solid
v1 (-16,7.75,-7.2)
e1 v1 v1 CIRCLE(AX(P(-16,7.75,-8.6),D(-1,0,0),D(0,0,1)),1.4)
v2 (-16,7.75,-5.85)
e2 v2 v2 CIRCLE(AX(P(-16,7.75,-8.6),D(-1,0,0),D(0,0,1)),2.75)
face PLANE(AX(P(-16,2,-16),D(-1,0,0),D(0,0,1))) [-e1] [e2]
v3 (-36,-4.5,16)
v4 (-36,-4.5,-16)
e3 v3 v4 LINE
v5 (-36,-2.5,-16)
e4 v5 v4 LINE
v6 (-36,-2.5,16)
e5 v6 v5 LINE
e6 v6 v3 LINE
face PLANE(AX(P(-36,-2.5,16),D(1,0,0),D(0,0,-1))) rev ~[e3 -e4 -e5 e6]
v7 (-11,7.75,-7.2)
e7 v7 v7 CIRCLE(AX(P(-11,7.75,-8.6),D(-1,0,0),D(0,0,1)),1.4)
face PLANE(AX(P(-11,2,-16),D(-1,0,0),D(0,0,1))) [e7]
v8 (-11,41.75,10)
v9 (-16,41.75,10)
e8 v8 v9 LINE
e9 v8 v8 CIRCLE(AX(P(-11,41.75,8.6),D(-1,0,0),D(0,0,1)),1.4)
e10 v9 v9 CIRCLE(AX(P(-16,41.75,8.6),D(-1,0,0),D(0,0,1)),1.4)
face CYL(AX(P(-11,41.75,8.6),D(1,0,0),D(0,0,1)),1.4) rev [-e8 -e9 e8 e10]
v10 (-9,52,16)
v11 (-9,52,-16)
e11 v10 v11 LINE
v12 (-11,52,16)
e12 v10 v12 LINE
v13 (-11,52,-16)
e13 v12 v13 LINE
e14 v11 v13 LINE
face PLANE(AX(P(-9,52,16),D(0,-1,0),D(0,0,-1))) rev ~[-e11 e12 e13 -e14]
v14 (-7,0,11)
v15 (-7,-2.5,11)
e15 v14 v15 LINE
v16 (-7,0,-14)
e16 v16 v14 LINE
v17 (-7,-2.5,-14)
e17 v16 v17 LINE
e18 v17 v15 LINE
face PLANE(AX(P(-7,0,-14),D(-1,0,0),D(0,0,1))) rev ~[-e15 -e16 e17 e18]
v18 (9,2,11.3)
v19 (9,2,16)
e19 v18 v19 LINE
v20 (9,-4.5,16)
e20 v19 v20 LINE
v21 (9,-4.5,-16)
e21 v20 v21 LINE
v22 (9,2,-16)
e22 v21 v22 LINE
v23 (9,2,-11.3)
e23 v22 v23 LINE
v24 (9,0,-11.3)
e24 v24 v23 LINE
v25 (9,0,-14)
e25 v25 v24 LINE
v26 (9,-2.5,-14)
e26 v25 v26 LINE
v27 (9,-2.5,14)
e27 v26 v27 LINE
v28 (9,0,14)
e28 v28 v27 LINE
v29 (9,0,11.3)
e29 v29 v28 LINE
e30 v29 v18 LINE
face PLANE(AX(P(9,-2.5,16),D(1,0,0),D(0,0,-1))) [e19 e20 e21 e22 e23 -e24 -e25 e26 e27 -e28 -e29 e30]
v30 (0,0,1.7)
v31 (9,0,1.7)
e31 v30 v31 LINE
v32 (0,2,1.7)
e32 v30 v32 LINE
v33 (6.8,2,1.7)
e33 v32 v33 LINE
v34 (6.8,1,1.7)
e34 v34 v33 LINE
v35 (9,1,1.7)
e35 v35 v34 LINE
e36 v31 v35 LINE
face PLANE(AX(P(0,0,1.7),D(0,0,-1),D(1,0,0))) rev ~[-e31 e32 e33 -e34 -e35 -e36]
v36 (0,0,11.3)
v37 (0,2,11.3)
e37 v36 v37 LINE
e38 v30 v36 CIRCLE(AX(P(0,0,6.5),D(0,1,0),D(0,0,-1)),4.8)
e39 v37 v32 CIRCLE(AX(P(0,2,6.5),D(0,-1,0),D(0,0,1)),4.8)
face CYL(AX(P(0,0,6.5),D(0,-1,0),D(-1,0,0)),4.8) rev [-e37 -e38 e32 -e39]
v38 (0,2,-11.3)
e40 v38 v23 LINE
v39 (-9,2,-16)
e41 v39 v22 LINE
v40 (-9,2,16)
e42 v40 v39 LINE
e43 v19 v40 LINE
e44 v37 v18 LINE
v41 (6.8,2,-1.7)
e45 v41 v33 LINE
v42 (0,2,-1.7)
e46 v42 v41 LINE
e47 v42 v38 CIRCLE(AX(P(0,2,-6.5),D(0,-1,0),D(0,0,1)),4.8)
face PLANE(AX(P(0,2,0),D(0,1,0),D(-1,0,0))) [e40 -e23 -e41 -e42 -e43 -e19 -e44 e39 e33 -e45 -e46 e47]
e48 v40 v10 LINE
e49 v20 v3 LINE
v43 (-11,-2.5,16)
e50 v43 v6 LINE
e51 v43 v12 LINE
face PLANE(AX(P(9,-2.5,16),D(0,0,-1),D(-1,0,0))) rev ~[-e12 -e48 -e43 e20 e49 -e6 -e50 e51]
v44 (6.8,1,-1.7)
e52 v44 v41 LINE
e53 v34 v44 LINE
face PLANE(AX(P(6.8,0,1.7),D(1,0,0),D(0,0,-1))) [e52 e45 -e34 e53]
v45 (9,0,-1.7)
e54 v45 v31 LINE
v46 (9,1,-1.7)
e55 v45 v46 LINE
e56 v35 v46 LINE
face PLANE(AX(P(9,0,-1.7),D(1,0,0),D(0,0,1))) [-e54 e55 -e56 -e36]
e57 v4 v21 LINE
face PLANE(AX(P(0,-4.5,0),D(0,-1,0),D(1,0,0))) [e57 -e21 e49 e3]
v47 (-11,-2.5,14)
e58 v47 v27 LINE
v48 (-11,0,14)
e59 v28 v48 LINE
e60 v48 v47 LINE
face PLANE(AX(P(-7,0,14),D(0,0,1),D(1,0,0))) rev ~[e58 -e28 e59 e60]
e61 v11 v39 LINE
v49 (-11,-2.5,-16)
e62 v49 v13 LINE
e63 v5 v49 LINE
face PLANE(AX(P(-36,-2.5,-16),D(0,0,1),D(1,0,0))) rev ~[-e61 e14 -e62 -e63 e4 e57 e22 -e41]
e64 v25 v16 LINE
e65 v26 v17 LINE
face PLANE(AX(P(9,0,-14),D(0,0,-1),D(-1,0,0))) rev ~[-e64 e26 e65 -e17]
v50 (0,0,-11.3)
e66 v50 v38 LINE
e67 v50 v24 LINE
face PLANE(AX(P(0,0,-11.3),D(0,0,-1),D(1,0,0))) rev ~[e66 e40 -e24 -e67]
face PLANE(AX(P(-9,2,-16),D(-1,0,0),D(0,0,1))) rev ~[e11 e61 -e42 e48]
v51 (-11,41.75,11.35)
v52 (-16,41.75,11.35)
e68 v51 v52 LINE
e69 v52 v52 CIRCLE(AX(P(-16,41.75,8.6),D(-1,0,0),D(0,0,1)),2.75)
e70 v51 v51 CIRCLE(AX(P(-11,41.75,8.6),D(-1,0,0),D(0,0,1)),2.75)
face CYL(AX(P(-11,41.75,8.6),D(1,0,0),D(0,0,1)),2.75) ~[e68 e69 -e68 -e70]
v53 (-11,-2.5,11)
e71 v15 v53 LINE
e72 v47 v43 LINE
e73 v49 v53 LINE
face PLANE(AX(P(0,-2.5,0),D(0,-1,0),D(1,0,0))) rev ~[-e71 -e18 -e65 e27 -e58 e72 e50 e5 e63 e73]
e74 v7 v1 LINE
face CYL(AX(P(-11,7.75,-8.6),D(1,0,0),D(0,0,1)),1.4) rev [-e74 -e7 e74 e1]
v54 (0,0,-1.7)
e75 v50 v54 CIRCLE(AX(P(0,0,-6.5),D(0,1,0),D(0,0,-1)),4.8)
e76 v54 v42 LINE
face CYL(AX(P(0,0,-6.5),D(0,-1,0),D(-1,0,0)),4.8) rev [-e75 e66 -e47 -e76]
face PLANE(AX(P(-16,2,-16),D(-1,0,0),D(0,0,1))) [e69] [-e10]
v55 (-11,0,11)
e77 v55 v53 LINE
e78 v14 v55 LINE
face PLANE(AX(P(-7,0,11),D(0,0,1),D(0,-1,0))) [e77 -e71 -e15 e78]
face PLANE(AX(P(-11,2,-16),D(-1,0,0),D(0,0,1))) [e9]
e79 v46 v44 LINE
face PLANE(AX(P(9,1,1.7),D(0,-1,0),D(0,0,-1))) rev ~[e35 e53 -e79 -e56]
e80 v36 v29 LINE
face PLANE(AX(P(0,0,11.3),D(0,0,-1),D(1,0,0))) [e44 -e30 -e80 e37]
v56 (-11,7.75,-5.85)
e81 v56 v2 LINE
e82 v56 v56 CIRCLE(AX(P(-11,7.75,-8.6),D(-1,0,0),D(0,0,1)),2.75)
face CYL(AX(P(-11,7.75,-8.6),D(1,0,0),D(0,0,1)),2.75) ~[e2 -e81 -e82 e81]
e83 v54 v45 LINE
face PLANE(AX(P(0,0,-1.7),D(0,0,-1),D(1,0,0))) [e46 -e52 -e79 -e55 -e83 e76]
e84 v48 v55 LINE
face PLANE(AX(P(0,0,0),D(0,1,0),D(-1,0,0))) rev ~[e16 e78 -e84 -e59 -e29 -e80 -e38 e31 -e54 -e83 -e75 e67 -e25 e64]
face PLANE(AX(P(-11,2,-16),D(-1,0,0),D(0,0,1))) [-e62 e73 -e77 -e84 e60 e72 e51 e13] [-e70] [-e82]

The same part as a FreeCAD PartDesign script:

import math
import FreeCAD as App
import Part
import Sketcher
from FreeCAD import Vector
Q = App.Units.Quantity

doc = App.newDocument("Part")
body = doc.addObject("PartDesign::Body", "Body")

# Sketch on XZ plane
sketch1 = doc.addObject("Sketcher::SketchObject", "Sketch")
body.addObject(sketch1)
sketch1.AttachmentSupport = (doc.XZ_Plane, [""])
sketch1.MapMode = "FlatFace"
sketch1.addGeometry(Part.LineSegment(Vector(9, -16, 0), Vector(-9, -16, 0)), False)
sketch1.addGeometry(Part.LineSegment(Vector(-9, -16, 0), Vector(-9, 16, 0)), False)
sketch1.addGeometry(Part.LineSegment(Vector(-9, 16, 0), Vector(9, 16, 0)), False)
sketch1.addGeometry(Part.LineSegment(Vector(9, 16, 0), Vector(9, 11.3, 0)), False)
sketch1.addGeometry(Part.LineSegment(Vector(9, 11.3, 0), Vector(0, 11.3, 0)), False)
sketch1.addGeometry(Part.ArcOfCircle(Part.Circle(Vector(0, 6.5, 0), Vector(0, 0, 1), 4.8), math.radians(90), math.radians(270)), False)
sketch1.addGeometry(Part.LineSegment(Vector(0, 1.7, 0), Vector(9, 1.7, 0)), False)
sketch1.addGeometry(Part.LineSegment(Vector(9, 1.7, 0), Vector(9, -1.7, 0)), False)
sketch1.addGeometry(Part.LineSegment(Vector(9, -1.7, 0), Vector(0, -1.7, 0)), False)
sketch1.addGeometry(Part.ArcOfCircle(Part.Circle(Vector(0, -6.5, 0), Vector(0, 0, 1), 4.8), math.radians(90), math.radians(270)), False)
sketch1.addGeometry(Part.LineSegment(Vector(0, -11.3, 0), Vector(9, -11.3, 0)), False)
sketch1.addGeometry(Part.LineSegment(Vector(9, -11.3, 0), Vector(9, -16, 0)), False)
sketch1.addConstraint(Sketcher.Constraint("Coincident", 0, 2, 1, 1))
sketch1.addConstraint(Sketcher.Constraint("Coincident", 1, 2, 2, 1))
sketch1.addConstraint(Sketcher.Constraint("Coincident", 2, 2, 3, 1))
sketch1.addConstraint(Sketcher.Constraint("Coincident", 3, 2, 4, 1))
sketch1.addConstraint(Sketcher.Constraint("Tangent", 4, 2, 5, 1))
sketch1.addConstraint(Sketcher.Constraint("Tangent", 5, 2, 6, 1))
sketch1.addConstraint(Sketcher.Constraint("Coincident", 6, 2, 7, 1))
sketch1.addConstraint(Sketcher.Constraint("Coincident", 7, 2, 8, 1))
sketch1.addConstraint(Sketcher.Constraint("Tangent", 8, 2, 9, 1))
sketch1.addConstraint(Sketcher.Constraint("Tangent", 9, 2, 10, 1))
sketch1.addConstraint(Sketcher.Constraint("Coincident", 10, 2, 11, 1))
sketch1.addConstraint(Sketcher.Constraint("Coincident", 11, 2, 0, 1))
sketch1.addConstraint(Sketcher.Constraint("Horizontal", 0))
sketch1.addConstraint(Sketcher.Constraint("Vertical", 1))
sketch1.addConstraint(Sketcher.Constraint("Horizontal", 2))
sketch1.addConstraint(Sketcher.Constraint("Vertical", 3))
sketch1.addConstraint(Sketcher.Constraint("Horizontal", 4))
sketch1.addConstraint(Sketcher.Constraint("Horizontal", 6))
sketch1.addConstraint(Sketcher.Constraint("Vertical", 7))
sketch1.addConstraint(Sketcher.Constraint("Horizontal", 8))
sketch1.addConstraint(Sketcher.Constraint("Horizontal", 10))
sketch1.addConstraint(Sketcher.Constraint("Vertical", 11))
sketch1.addConstraint(Sketcher.Constraint("Equal", 5, 9))
sketch1.addConstraint(Sketcher.Constraint("Symmetric", 5, 3, 9, 3, -1, 1))
sketch1.addConstraint(Sketcher.Constraint("Symmetric", 0, 2, 2, 2, -1, 1))
sketch1.addConstraint(Sketcher.Constraint("PointOnObject", 5, 3, -2))
sketch1.addConstraint(Sketcher.Constraint("Vertical", 3, 2, 6, 2))
sketch1.addConstraint(Sketcher.Constraint("Vertical", 7, 2, 10, 2))
sketch1.addConstraint(Sketcher.Constraint("Radius", 5, Q("4.8 mm")))
sketch1.addConstraint(Sketcher.Constraint("DistanceX", 0, 2, 0, 1, Q("18 mm")))
sketch1.addConstraint(Sketcher.Constraint("DistanceY", 1, 1, 1, 2, Q("32 mm")))
sketch1.addConstraint(Sketcher.Constraint("DistanceY", 9, 3, 5, 3, Q("13 mm")))
pad1 = doc.addObject("PartDesign::Pad", "Pad")
body.addObject(pad1)
pad1.Profile = sketch1
pad1.Length = 2
pad1.Reversed = True

# Sketch on XZ plane
sketch2 = doc.addObject("Sketcher::SketchObject", "Sketch001")
body.addObject(sketch2)
sketch2.AttachmentSupport = (doc.XZ_Plane, [""])
sketch2.MapMode = "FlatFace"
sketch2.addGeometry(Part.LineSegment(Vector(9, 16, 0), Vector(-9, 16, 0)), False)
sketch2.addGeometry(Part.LineSegment(Vector(-9, 16, 0), Vector(-9, -16, 0)), False)
sketch2.addGeometry(Part.LineSegment(Vector(-9, -16, 0), Vector(9, -16, 0)), False)
sketch2.addGeometry(Part.LineSegment(Vector(9, -16, 0), Vector(9, -14, 0)), False)
sketch2.addGeometry(Part.LineSegment(Vector(9, -14, 0), Vector(-7, -14, 0)), False)
sketch2.addGeometry(Part.LineSegment(Vector(-7, -14, 0), Vector(-7, 14, 0)), False)
sketch2.addGeometry(Part.LineSegment(Vector(-7, 14, 0), Vector(9, 14, 0)), False)
sketch2.addGeometry(Part.LineSegment(Vector(9, 14, 0), Vector(9, 16, 0)), False)
sketch2.addConstraint(Sketcher.Constraint("Coincident", 0, 2, 1, 1))
sketch2.addConstraint(Sketcher.Constraint("Coincident", 1, 2, 2, 1))
sketch2.addConstraint(Sketcher.Constraint("Coincident", 2, 2, 3, 1))
sketch2.addConstraint(Sketcher.Constraint("Coincident", 3, 2, 4, 1))
sketch2.addConstraint(Sketcher.Constraint("Coincident", 4, 2, 5, 1))
sketch2.addConstraint(Sketcher.Constraint("Coincident", 5, 2, 6, 1))
sketch2.addConstraint(Sketcher.Constraint("Coincident", 6, 2, 7, 1))
sketch2.addConstraint(Sketcher.Constraint("Coincident", 7, 2, 0, 1))
sketch2.addConstraint(Sketcher.Constraint("Horizontal", 0))
sketch2.addConstraint(Sketcher.Constraint("Vertical", 1))
sketch2.addConstraint(Sketcher.Constraint("Horizontal", 2))
sketch2.addConstraint(Sketcher.Constraint("Vertical", 3))
sketch2.addConstraint(Sketcher.Constraint("Horizontal", 4))
sketch2.addConstraint(Sketcher.Constraint("Vertical", 5))
sketch2.addConstraint(Sketcher.Constraint("Horizontal", 6))
sketch2.addConstraint(Sketcher.Constraint("Vertical", 7))
sketch2.addConstraint(Sketcher.Constraint("Symmetric", 0, 2, 2, 2, -1, 1))
sketch2.addConstraint(Sketcher.Constraint("Symmetric", 3, 2, 6, 2, -1))
sketch2.addConstraint(Sketcher.Constraint("DistanceX", 4, 2, 4, 1, Q("16 mm")))
sketch2.addConstraint(Sketcher.Constraint("DistanceY", 3, 1, 3, 2, Q("2 mm")))
sketch2.addConstraint(Sketcher.Constraint("DistanceY", 5, 1, 5, 2, Q("28 mm")))
sketch2.addConstraint(Sketcher.Constraint("DistanceX", 1, 2, 4, 2, Q("2 mm")))
pad2 = doc.addObject("PartDesign::Pad", "Pad001")
body.addObject(pad2)
pad2.Profile = sketch2
pad2.Length = 2.5

# Sketch on YZ plane
sketch3 = doc.addObject("Sketcher::SketchObject", "Sketch002")
body.addObject(sketch3)
sketch3.AttachmentSupport = (doc.YZ_Plane, [""])
sketch3.MapMode = "FlatFace"
sketch3.AttachmentOffset = App.Placement(Vector(0, 0, -9), App.Rotation())
sketch3.addGeometry(Part.LineSegment(Vector(52, -16, 0), Vector(-2, -16, 0)), False)
sketch3.addGeometry(Part.LineSegment(Vector(-2, -16, 0), Vector(-2, 16, 0)), False)
sketch3.addGeometry(Part.LineSegment(Vector(-2, 16, 0), Vector(52, 16, 0)), False)
sketch3.addGeometry(Part.LineSegment(Vector(52, 16, 0), Vector(52, -16, 0)), False)
sketch3.addConstraint(Sketcher.Constraint("Coincident", 0, 2, 1, 1))
sketch3.addConstraint(Sketcher.Constraint("Coincident", 1, 2, 2, 1))
sketch3.addConstraint(Sketcher.Constraint("Coincident", 2, 2, 3, 1))
sketch3.addConstraint(Sketcher.Constraint("Coincident", 3, 2, 0, 1))
sketch3.addConstraint(Sketcher.Constraint("Horizontal", 0))
sketch3.addConstraint(Sketcher.Constraint("Vertical", 1))
sketch3.addConstraint(Sketcher.Constraint("Horizontal", 2))
sketch3.addConstraint(Sketcher.Constraint("Vertical", 3))
sketch3.addConstraint(Sketcher.Constraint("DistanceX", 0, 2, 0, 1, Q("54.5 mm")))
sketch3.addConstraint(Sketcher.Constraint("DistanceY", 1, 1, 1, 2, Q("32 mm")))
sketch3.addConstraint(Sketcher.Constraint("DistanceY", 0, 2, -1, 1, Q("16 mm")))
sketch3.addConstraint(Sketcher.Constraint("DistanceX", -1, 1, 2, 2, Q("52 mm")))
pad3 = doc.addObject("PartDesign::Pad", "Pad002")
body.addObject(pad3)
pad3.Profile = sketch3
pad3.Length = 2
pad3.Reversed = True

# Sketch on XZ plane
sketch4 = doc.addObject("Sketcher::SketchObject", "Sketch003")
body.addObject(sketch4)
sketch4.AttachmentSupport = (doc.XZ_Plane, [""])
sketch4.MapMode = "FlatFace"
sketch4.AttachmentOffset = App.Placement(Vector(0, 0, 2.5), App.Rotation())
sketch4.addGeometry(Part.LineSegment(Vector(9, -16, 0), Vector(9, 16, 0)), False)
sketch4.addGeometry(Part.LineSegment(Vector(9, 16, 0), Vector(-36, 16, 0)), False)
sketch4.addGeometry(Part.LineSegment(Vector(-36, 16, 0), Vector(-36, -16, 0)), False)
sketch4.addGeometry(Part.LineSegment(Vector(-36, -16, 0), Vector(9, -16, 0)), False)
sketch4.addConstraint(Sketcher.Constraint("Coincident", 0, 2, 1, 1))
sketch4.addConstraint(Sketcher.Constraint("Coincident", 1, 2, 2, 1))
sketch4.addConstraint(Sketcher.Constraint("Coincident", 2, 2, 3, 1))
sketch4.addConstraint(Sketcher.Constraint("Coincident", 3, 2, 0, 1))
sketch4.addConstraint(Sketcher.Constraint("Vertical", 0))
sketch4.addConstraint(Sketcher.Constraint("Horizontal", 1))
sketch4.addConstraint(Sketcher.Constraint("Vertical", 2))
sketch4.addConstraint(Sketcher.Constraint("Horizontal", 3))
sketch4.addConstraint(Sketcher.Constraint("DistanceX", 1, 2, 1, 1, Q("45 mm")))
sketch4.addConstraint(Sketcher.Constraint("DistanceY", 0, 1, 0, 2, Q("32 mm")))
sketch4.addConstraint(Sketcher.Constraint("DistanceX", -1, 1, 0, 2, Q("9 mm")))
sketch4.addConstraint(Sketcher.Constraint("DistanceY", -1, 1, 0, 2, Q("16 mm")))
pad4 = doc.addObject("PartDesign::Pad", "Pad003")
body.addObject(pad4)
pad4.Profile = sketch4
pad4.Length = 2

# Sketch on YZ plane
sketch5 = doc.addObject("Sketcher::SketchObject", "Sketch004")
body.addObject(sketch5)
sketch5.AttachmentSupport = (doc.YZ_Plane, [""])
sketch5.MapMode = "FlatFace"
sketch5.AttachmentOffset = App.Placement(Vector(0, 0, -7), App.Rotation())
sketch5.addGeometry(Part.LineSegment(Vector(0, 11, 0), Vector(0, 14, 0)), False)
sketch5.addGeometry(Part.LineSegment(Vector(0, 14, 0), Vector(-2.5, 14, 0)), False)
sketch5.addGeometry(Part.LineSegment(Vector(-2.5, 14, 0), Vector(-2.5, 11, 0)), False)
sketch5.addGeometry(Part.LineSegment(Vector(-2.5, 11, 0), Vector(0, 11, 0)), False)
sketch5.addConstraint(Sketcher.Constraint("Coincident", 0, 2, 1, 1))
sketch5.addConstraint(Sketcher.Constraint("Coincident", 1, 2, 2, 1))
sketch5.addConstraint(Sketcher.Constraint("Coincident", 2, 2, 3, 1))
sketch5.addConstraint(Sketcher.Constraint("Coincident", 3, 2, 0, 1))
sketch5.addConstraint(Sketcher.Constraint("Vertical", 0))
sketch5.addConstraint(Sketcher.Constraint("Horizontal", 1))
sketch5.addConstraint(Sketcher.Constraint("Vertical", 2))
sketch5.addConstraint(Sketcher.Constraint("Horizontal", 3))
sketch5.addConstraint(Sketcher.Constraint("PointOnObject", 0, 2, -2))
sketch5.addConstraint(Sketcher.Constraint("DistanceY", 0, 1, 0, 2, Q("3 mm")))
sketch5.addConstraint(Sketcher.Constraint("DistanceX", 1, 2, 1, 1, Q("2.5 mm")))
sketch5.addConstraint(Sketcher.Constraint("DistanceY", -1, 1, 0, 2, Q("14 mm")))
pocket1 = doc.addObject("PartDesign::Pocket", "Pocket")
body.addObject(pocket1)
pocket1.Profile = sketch5
pocket1.Length = 4

# Sketch on YZ plane
sketch6 = doc.addObject("Sketcher::SketchObject", "Sketch005")
body.addObject(sketch6)
sketch6.AttachmentSupport = (doc.YZ_Plane, [""])
sketch6.MapMode = "FlatFace"
sketch6.AttachmentOffset = App.Placement(Vector(0, 0, 9), App.Rotation())
sketch6.addGeometry(Part.LineSegment(Vector(2, 1.7, 0), Vector(1, 1.7, 0)), False)
sketch6.addGeometry(Part.LineSegment(Vector(1, 1.7, 0), Vector(1, -1.7, 0)), False)
sketch6.addGeometry(Part.LineSegment(Vector(1, -1.7, 0), Vector(2, -1.7, 0)), False)
sketch6.addGeometry(Part.LineSegment(Vector(2, -1.7, 0), Vector(2, 1.7, 0)), False)
sketch6.addConstraint(Sketcher.Constraint("Coincident", 0, 2, 1, 1))
sketch6.addConstraint(Sketcher.Constraint("Coincident", 1, 2, 2, 1))
sketch6.addConstraint(Sketcher.Constraint("Coincident", 2, 2, 3, 1))
sketch6.addConstraint(Sketcher.Constraint("Coincident", 3, 2, 0, 1))
sketch6.addConstraint(Sketcher.Constraint("Horizontal", 0))
sketch6.addConstraint(Sketcher.Constraint("Vertical", 1))
sketch6.addConstraint(Sketcher.Constraint("Horizontal", 2))
sketch6.addConstraint(Sketcher.Constraint("Vertical", 3))
sketch6.addConstraint(Sketcher.Constraint("DistanceX", 0, 2, 0, 1, Q("1 mm")))
sketch6.addConstraint(Sketcher.Constraint("DistanceY", 1, 2, 1, 1, Q("3.4 mm")))
sketch6.addConstraint(Sketcher.Constraint("DistanceX", -1, 1, 0, 2, Q("1 mm")))
sketch6.addConstraint(Sketcher.Constraint("DistanceY", -1, 1, 0, 2, Q("1.7 mm")))
pocket2 = doc.addObject("PartDesign::Pocket", "Pocket001")
body.addObject(pocket2)
pocket2.Profile = sketch6
pocket2.Length = 2.2

# Sketch on YZ plane
sketch7 = doc.addObject("Sketcher::SketchObject", "Sketch006")
body.addObject(sketch7)
sketch7.AttachmentSupport = (doc.YZ_Plane, [""])
sketch7.MapMode = "FlatFace"
sketch7.AttachmentOffset = App.Placement(Vector(0, 0, -11), App.Rotation())
sketch7.addGeometry(Part.Circle(Vector(41.8, 8.6, 0), Vector(0, 0, 1), 2.8), False)
sketch7.addGeometry(Part.Circle(Vector(41.8, 8.6, 0), Vector(0, 0, 1), 1.4), False)
sketch7.addGeometry(Part.Circle(Vector(7.8, -8.6, 0), Vector(0, 0, 1), 2.8), False)
sketch7.addGeometry(Part.Circle(Vector(7.8, -8.6, 0), Vector(0, 0, 1), 1.4), False)
sketch7.addConstraint(Sketcher.Constraint("Coincident", 1, 3, 0, 3))
sketch7.addConstraint(Sketcher.Constraint("Coincident", 3, 3, 2, 3))
sketch7.addConstraint(Sketcher.Constraint("Equal", 0, 2))
sketch7.addConstraint(Sketcher.Constraint("Equal", 1, 3))
sketch7.addConstraint(Sketcher.Constraint("Diameter", 0, Q("5.5 mm")))
sketch7.addConstraint(Sketcher.Constraint("Diameter", 1, Q("2.8 mm")))
sketch7.addConstraint(Sketcher.Constraint("DistanceX", 2, 3, 0, 3, Q("34 mm")))
sketch7.addConstraint(Sketcher.Constraint("DistanceY", -1, 1, 0, 3, Q("8.6 mm")))
sketch7.addConstraint(Sketcher.Constraint("DistanceY", 2, 3, -1, 1, Q("8.6 mm")))
sketch7.addConstraint(Sketcher.Constraint("DistanceX", -1, 1, 0, 3, Q("41.75 mm")))
pad5 = doc.addObject("PartDesign::Pad", "Pad004")
body.addObject(pad5)
pad5.Profile = sketch7
pad5.Length = 5
pad5.Reversed = True

doc.recompute()
